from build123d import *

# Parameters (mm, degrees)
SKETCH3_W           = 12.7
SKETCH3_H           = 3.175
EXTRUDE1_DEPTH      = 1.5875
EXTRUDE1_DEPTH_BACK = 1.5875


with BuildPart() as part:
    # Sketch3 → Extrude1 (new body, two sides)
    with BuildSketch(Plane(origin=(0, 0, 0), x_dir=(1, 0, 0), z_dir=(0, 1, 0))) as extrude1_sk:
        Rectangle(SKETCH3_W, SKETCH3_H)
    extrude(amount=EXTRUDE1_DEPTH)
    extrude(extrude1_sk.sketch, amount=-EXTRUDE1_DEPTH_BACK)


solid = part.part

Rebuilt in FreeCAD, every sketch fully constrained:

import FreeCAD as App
import Part
import Sketcher
from FreeCAD import Vector
Q = App.Units.Quantity


def add_polygon(sketch, points):
    """Adds a closed chain of lines whose ends are joined by coincident constraints."""
    first, n = sketch.GeometryCount, len(points)
    for a, b in zip(points, points[1:] + points[:1]):
        sketch.addGeometry(Part.LineSegment(App.Vector(*a, 0), App.Vector(*b, 0)), False)
    for i in range(n):
        sketch.addConstraint(Sketcher.Constraint("Coincident", first + i, 2, first + (i + 1) % n, 1))

doc = App.newDocument("Part")
body = doc.addObject("PartDesign::Body", "Body")

# Sketch on XZ plane
sketch1 = body.newObject("Sketcher::SketchObject", "Sketch")
sketch1.AttachmentSupport = (doc.getObject("XZ_Plane"), [""])
sketch1.MapMode = "FlatFace"
add_polygon(sketch1, [(-6.3, -1.6), (-6.3, 1.6), (6.3, 1.6), (6.3, -1.6)])  # lines 0-3
sketch1.addConstraint([
    Sketcher.Constraint("Vertical", 0),
    Sketcher.Constraint("Horizontal", 1),
    Sketcher.Constraint("Vertical", 2),
    Sketcher.Constraint("Horizontal", 3),
    Sketcher.Constraint("Symmetric", 0, 2, 2, 2, -1, 1),
    Sketcher.Constraint("DistanceX", 1, 1, 1, 2, Q("0.5 in")),
    Sketcher.Constraint("DistanceY", 0, 1, 0, 2, Q("0.125 in")),
])
pad1 = body.newObject("PartDesign::Pad", "Pad")
pad1.Profile = sketch1
pad1.Type = "TwoLengths"
pad1.Length = Q("0.0625 in")
pad1.Length2 = Q("0.0625 in")
pad1.Reversed = True

doc.recompute()
